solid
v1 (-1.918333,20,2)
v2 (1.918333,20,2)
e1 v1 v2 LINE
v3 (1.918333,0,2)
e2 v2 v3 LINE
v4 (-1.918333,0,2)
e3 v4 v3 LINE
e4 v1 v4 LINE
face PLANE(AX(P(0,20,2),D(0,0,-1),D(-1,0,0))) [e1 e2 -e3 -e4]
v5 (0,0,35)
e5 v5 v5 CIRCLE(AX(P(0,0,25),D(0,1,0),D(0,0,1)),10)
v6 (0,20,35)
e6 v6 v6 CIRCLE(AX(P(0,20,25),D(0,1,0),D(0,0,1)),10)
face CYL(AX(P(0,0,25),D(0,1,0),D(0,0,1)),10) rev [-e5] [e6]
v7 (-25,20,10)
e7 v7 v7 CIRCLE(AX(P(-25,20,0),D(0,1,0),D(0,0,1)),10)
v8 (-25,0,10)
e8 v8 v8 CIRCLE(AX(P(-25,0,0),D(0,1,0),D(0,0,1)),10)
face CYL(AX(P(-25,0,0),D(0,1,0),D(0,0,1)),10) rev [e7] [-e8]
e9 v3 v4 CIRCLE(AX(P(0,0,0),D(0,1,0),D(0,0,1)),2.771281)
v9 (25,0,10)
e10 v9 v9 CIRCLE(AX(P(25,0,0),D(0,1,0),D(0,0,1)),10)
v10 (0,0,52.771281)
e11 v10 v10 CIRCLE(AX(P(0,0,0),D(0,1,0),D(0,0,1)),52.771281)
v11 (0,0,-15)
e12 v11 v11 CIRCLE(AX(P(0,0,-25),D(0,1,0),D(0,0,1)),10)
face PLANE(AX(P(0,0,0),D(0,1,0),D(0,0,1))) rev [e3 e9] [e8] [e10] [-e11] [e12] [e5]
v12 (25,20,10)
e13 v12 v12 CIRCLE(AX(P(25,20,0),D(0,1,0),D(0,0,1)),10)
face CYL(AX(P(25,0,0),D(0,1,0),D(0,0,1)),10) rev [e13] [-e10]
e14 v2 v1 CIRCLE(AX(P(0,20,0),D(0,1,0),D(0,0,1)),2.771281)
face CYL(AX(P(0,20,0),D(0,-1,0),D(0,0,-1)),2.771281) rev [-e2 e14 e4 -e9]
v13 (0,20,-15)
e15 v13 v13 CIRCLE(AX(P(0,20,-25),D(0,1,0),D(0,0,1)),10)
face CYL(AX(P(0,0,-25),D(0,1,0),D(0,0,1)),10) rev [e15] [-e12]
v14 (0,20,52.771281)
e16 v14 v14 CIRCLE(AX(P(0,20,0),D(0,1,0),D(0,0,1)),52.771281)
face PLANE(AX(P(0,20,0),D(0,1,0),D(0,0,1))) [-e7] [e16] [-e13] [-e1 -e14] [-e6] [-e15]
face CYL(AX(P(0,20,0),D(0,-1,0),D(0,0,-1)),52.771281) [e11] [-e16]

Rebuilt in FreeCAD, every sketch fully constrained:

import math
import FreeCAD as App
import Part
import Sketcher

doc = App.newDocument("Part")
body = doc.addObject("PartDesign::Body", "Body")

# Sketch on XZ plane
sketch1 = body.newObject("Sketcher::SketchObject", "Sketch")
sketch1.AttachmentSupport = (doc.getObject("XZ_Plane"), [""])
sketch1.MapMode = "FlatFace"
sketch1.addGeometry(Part.Circle(App.Vector(0, 0, 0), App.Vector(0, 0, 1), 52.8), False)
sketch1.addGeometry(Part.LineSegment(App.Vector(1.9, 2, 0), App.Vector(-1.9, 2, 0)), False)
sketch1.addGeometry(Part.ArcOfCircle(Part.Circle(App.Vector(0, 0, 0), App.Vector(0, 0, 1), 2.8), math.radians(134), math.radians(406)), False)
sketch1.addConstraint(Sketcher.Constraint("Coincident", 1, 1, 2, 2))
sketch1.addConstraint(Sketcher.Constraint("Coincident", 2, 1, 1, 2))
sketch1.addConstraint(Sketcher.Constraint("Horizontal", 1))
sketch1.addConstraint(Sketcher.Constraint("Coincident", 0, 3, -1, 1))
sketch1.addConstraint(Sketcher.Constraint("Coincident", 2, 3, -1, 1))
sketch1.addConstraint(Sketcher.Constraint("DistanceY", -1, 1, 1, 1, 2.0))
sketch1.addConstraint(Sketcher.Constraint("Radius", 2, 2.771281))
sketch1.addConstraint(Sketcher.Constraint("Diameter", 0, 105.542563))
pad1 = body.newObject("PartDesign::Pad", "Pad")
pad1.Profile = sketch1
pad1.Length = 20
pad1.Reversed = True

# Sketch on XZ plane
sketch2 = body.newObject("Sketcher::SketchObject", "Sketch001")
sketch2.AttachmentSupport = (doc.getObject("XZ_Plane"), [""])
sketch2.MapMode = "FlatFace"
sketch2.AttachmentOffset = App.Placement(App.Vector(0, 0, -20), App.Rotation())
sketch2.addGeometry(Part.Circle(App.Vector(-25, 0, 0), App.Vector(0, 0, 1), 10), False)
sketch2.addGeometry(Part.Circle(App.Vector(0, -25, 0), App.Vector(0, 0, 1), 10), False)
sketch2.addGeometry(Part.Circle(App.Vector(25, 0, 0), App.Vector(0, 0, 1), 10), False)
sketch2.addGeometry(Part.Circle(App.Vector(0, 25, 0), App.Vector(0, 0, 1), 10), False)
sketch2.addConstraint(Sketcher.Constraint("Equal", 0, 1))
sketch2.addConstraint(Sketcher.Constraint("Equal", 1, 2))
sketch2.addConstraint(Sketcher.Constraint("Equal", 2, 3))
sketch2.addConstraint(Sketcher.Constraint("Symmetric", 0, 3, 2, 3, -1, 1))
sketch2.addConstraint(Sketcher.Constraint("Symmetric", 1, 3, 3, 3, -1, 1))
sketch2.addConstraint(Sketcher.Constraint("PointOnObject", 0, 3, -1))
sketch2.addConstraint(Sketcher.Constraint("PointOnObject", 1, 3, -2))
sketch2.addConstraint(Sketcher.Constraint("Diameter", 0, 20.0))
sketch2.addConstraint(Sketcher.Constraint("DistanceX", 0, 3, -1, 1, 25.0))
sketch2.addConstraint(Sketcher.Constraint("DistanceY", 1, 3, -1, 1, 25.0))
pocket1 = body.newObject("PartDesign::Pocket", "Pocket")
pocket1.Profile = sketch2
pocket1.Length = 20
pocket1.Reversed = True

doc.recompute()
